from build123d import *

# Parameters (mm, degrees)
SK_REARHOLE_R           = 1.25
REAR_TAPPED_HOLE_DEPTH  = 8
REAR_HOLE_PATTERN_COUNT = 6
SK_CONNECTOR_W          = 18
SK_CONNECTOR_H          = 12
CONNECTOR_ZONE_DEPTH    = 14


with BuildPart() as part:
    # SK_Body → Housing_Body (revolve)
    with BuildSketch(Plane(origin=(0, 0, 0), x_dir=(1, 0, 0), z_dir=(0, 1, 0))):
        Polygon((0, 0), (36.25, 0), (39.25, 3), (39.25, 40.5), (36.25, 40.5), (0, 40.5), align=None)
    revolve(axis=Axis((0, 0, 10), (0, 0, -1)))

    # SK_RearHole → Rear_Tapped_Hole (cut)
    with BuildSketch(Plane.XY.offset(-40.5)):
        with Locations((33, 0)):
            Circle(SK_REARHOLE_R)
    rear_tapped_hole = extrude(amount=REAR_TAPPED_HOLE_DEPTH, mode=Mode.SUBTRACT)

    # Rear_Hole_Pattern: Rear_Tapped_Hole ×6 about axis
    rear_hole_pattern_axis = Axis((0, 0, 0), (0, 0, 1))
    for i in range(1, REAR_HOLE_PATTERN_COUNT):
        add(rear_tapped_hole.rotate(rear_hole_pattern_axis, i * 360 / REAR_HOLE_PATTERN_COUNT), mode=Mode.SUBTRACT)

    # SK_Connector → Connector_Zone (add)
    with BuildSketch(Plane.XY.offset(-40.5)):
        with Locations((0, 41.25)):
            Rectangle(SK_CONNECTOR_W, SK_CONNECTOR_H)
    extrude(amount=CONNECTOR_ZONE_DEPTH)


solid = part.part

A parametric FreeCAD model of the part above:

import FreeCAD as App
import Part
import Sketcher
from FreeCAD import Vector
Q = App.Units.Quantity

doc = App.newDocument("Part")
params = doc.addObject("Spreadsheet::Sheet", "Params")
for row, (alias, value) in enumerate([
    ("sketch1_height", "37.5 mm"),
    ("sketch1_height2", "40.5 mm"),
    ("sketch1_width", "36.25 mm"),
    ("revolution_angle", "360 deg"),
    ("sketch2_diameter", "2.5 mm"),
    ("pocket1_length", "8 mm"),
    ("sketch3_width", "18 mm"),
    ("sketch3_height", "12 mm"),
    ("pad1_length", "14 mm"),
], start=1):
    params.set(f"A{row}", alias)
    params.set(f"B{row}", "=" + value)
    params.setAlias(f"B{row}", alias)

body = doc.addObject("PartDesign::Body", "Body")

sketch1 = body.newObject("Sketcher::SketchObject", "Sketch")
sketch1.AttachmentSupport = (doc.getObject("XZ_Plane"), [""])
sketch1.MapMode = "FlatFace"
sketch1.addGeometry([
    Part.LineSegment(Vector(0, 0, 0), Vector(36.2, 0, 0)),
    Part.LineSegment(Vector(36.2, 0, 0), Vector(39.2, -3, 0)),
    Part.LineSegment(Vector(39.2, -3, 0), Vector(39.2, -40.5, 0)),
    Part.LineSegment(Vector(39.2, -40.5, 0), Vector(0, -40.5, 0)),
    Part.LineSegment(Vector(0, -40.5, 0), Vector(0, 0, 0)),
], False)
sketch1.addConstraint([
    Sketcher.Constraint("Coincident", 0, 2, 1, 1),
    Sketcher.Constraint("Coincident", 1, 2, 2, 1),
    Sketcher.Constraint("Coincident", 2, 2, 3, 1),
    Sketcher.Constraint("Coincident", 3, 2, 4, 1),
    Sketcher.Constraint("Coincident", 4, 2, 0, 1),
    Sketcher.Constraint("Horizontal", 0),
    Sketcher.Constraint("Vertical", 2),
    Sketcher.Constraint("Horizontal", 3),
    Sketcher.Constraint("Vertical", 4),
    Sketcher.Constraint("Coincident", 4, 2, -1, 1),
    Sketcher.Constraint("Angle", 1, Q("-45 deg")),
    Sketcher.Constraint("DistanceY", 2, 2, 2, 1, 37.5),
    Sketcher.Constraint("DistanceY", 4, 1, 4, 2, 40.5),
    Sketcher.Constraint("DistanceX", 0, 1, 0, 2, 36.25),
])
sketch1.setExpression("Constraints[11]", "Params.sketch1_height")
sketch1.setExpression("Constraints[12]", "Params.sketch1_height2")
sketch1.setExpression("Constraints[13]", "Params.sketch1_width")
revolution = body.newObject("PartDesign::Revolution", "Revolution")
revolution.Profile = sketch1
revolution.ReferenceAxis = (sketch1, ["V_Axis"])
revolution.setExpression("Angle", "Params.revolution_angle")

sketch2 = body.newObject("Sketcher::SketchObject", "Sketch001")
sketch2.AttachmentSupport = (doc.getObject("XY_Plane"), [""])
sketch2.MapMode = "FlatFace"
sketch2.AttachmentOffset = App.Placement(Vector(0, 0, -40.5), App.Rotation())
sketch2.addGeometry(Part.Circle(Vector(33, 0, 0), Vector(0, 0, 1), 1.2), False)
sketch2.addConstraint([
    Sketcher.Constraint("PointOnObject", 0, 3, -1),
    Sketcher.Constraint("Diameter", 0, 2.5),
    Sketcher.Constraint("DistanceX", -1, 1, 0, 3, 33.0),
])
sketch2.setExpression("Constraints[1]", "Params.sketch2_diameter")
pocket1 = body.newObject("PartDesign::Pocket", "Pocket")
pocket1.Profile = sketch2
pocket1.setExpression("Length", "Params.pocket1_length")
pocket1.Reversed = True
doc.recompute()

polarpattern = body.newObject("PartDesign::PolarPattern", "PolarPattern")
polarpattern.Originals = [pocket1]
polarpattern.Axis = (doc.getObject("Z_Axis"), [""])
polarpattern.Angle = 360
polarpattern.Occurrences = 6
body.Tip = polarpattern

sketch3 = body.newObject("Sketcher::SketchObject", "Sketch002")
sketch3.AttachmentSupport = (doc.getObject("XY_Plane"), [""])
sketch3.MapMode = "FlatFace"
sketch3.AttachmentOffset = App.Placement(Vector(0, 0, -40.5), App.Rotation())
sketch3.addGeometry([
    Part.LineSegment(Vector(-9, 47, 0), Vector(-9, 35, 0)),
    Part.LineSegment(Vector(-9, 35, 0), Vector(9, 35, 0)),
    Part.LineSegment(Vector(9, 35, 0), Vector(9, 47, 0)),
    Part.LineSegment(Vector(9, 47, 0), Vector(-9, 47, 0)),
], False)
sketch3.addConstraint([
    Sketcher.Constraint("Coincident", 0, 2, 1, 1),
    Sketcher.Constraint("Coincident", 1, 2, 2, 1),
    Sketcher.Constraint("Coincident", 2, 2, 3, 1),
    Sketcher.Constraint("Coincident", 3, 2, 0, 1),
    Sketcher.Constraint("Vertical", 0),
    Sketcher.Constraint("Horizontal", 1),
    Sketcher.Constraint("Vertical", 2),
    Sketcher.Constraint("Horizontal", 3),
    Sketcher.Constraint("DistanceX", 1, 1, 1, 2, 18.0),
    Sketcher.Constraint("DistanceY", 0, 2, 0, 1, 12.0),
    Sketcher.Constraint("DistanceX", 0, 2, -1, 1, 9.0),
    Sketcher.Constraint("DistanceY", -1, 1, 0, 2, 35.25),
])
sketch3.setExpression("Constraints[8]", "Params.sketch3_width")
sketch3.setExpression("Constraints[9]", "Params.sketch3_height")
pad1 = body.newObject("PartDesign::Pad", "Pad")
pad1.Profile = sketch3
pad1.setExpression("Length", "Params.pad1_length")

doc.recompute()
